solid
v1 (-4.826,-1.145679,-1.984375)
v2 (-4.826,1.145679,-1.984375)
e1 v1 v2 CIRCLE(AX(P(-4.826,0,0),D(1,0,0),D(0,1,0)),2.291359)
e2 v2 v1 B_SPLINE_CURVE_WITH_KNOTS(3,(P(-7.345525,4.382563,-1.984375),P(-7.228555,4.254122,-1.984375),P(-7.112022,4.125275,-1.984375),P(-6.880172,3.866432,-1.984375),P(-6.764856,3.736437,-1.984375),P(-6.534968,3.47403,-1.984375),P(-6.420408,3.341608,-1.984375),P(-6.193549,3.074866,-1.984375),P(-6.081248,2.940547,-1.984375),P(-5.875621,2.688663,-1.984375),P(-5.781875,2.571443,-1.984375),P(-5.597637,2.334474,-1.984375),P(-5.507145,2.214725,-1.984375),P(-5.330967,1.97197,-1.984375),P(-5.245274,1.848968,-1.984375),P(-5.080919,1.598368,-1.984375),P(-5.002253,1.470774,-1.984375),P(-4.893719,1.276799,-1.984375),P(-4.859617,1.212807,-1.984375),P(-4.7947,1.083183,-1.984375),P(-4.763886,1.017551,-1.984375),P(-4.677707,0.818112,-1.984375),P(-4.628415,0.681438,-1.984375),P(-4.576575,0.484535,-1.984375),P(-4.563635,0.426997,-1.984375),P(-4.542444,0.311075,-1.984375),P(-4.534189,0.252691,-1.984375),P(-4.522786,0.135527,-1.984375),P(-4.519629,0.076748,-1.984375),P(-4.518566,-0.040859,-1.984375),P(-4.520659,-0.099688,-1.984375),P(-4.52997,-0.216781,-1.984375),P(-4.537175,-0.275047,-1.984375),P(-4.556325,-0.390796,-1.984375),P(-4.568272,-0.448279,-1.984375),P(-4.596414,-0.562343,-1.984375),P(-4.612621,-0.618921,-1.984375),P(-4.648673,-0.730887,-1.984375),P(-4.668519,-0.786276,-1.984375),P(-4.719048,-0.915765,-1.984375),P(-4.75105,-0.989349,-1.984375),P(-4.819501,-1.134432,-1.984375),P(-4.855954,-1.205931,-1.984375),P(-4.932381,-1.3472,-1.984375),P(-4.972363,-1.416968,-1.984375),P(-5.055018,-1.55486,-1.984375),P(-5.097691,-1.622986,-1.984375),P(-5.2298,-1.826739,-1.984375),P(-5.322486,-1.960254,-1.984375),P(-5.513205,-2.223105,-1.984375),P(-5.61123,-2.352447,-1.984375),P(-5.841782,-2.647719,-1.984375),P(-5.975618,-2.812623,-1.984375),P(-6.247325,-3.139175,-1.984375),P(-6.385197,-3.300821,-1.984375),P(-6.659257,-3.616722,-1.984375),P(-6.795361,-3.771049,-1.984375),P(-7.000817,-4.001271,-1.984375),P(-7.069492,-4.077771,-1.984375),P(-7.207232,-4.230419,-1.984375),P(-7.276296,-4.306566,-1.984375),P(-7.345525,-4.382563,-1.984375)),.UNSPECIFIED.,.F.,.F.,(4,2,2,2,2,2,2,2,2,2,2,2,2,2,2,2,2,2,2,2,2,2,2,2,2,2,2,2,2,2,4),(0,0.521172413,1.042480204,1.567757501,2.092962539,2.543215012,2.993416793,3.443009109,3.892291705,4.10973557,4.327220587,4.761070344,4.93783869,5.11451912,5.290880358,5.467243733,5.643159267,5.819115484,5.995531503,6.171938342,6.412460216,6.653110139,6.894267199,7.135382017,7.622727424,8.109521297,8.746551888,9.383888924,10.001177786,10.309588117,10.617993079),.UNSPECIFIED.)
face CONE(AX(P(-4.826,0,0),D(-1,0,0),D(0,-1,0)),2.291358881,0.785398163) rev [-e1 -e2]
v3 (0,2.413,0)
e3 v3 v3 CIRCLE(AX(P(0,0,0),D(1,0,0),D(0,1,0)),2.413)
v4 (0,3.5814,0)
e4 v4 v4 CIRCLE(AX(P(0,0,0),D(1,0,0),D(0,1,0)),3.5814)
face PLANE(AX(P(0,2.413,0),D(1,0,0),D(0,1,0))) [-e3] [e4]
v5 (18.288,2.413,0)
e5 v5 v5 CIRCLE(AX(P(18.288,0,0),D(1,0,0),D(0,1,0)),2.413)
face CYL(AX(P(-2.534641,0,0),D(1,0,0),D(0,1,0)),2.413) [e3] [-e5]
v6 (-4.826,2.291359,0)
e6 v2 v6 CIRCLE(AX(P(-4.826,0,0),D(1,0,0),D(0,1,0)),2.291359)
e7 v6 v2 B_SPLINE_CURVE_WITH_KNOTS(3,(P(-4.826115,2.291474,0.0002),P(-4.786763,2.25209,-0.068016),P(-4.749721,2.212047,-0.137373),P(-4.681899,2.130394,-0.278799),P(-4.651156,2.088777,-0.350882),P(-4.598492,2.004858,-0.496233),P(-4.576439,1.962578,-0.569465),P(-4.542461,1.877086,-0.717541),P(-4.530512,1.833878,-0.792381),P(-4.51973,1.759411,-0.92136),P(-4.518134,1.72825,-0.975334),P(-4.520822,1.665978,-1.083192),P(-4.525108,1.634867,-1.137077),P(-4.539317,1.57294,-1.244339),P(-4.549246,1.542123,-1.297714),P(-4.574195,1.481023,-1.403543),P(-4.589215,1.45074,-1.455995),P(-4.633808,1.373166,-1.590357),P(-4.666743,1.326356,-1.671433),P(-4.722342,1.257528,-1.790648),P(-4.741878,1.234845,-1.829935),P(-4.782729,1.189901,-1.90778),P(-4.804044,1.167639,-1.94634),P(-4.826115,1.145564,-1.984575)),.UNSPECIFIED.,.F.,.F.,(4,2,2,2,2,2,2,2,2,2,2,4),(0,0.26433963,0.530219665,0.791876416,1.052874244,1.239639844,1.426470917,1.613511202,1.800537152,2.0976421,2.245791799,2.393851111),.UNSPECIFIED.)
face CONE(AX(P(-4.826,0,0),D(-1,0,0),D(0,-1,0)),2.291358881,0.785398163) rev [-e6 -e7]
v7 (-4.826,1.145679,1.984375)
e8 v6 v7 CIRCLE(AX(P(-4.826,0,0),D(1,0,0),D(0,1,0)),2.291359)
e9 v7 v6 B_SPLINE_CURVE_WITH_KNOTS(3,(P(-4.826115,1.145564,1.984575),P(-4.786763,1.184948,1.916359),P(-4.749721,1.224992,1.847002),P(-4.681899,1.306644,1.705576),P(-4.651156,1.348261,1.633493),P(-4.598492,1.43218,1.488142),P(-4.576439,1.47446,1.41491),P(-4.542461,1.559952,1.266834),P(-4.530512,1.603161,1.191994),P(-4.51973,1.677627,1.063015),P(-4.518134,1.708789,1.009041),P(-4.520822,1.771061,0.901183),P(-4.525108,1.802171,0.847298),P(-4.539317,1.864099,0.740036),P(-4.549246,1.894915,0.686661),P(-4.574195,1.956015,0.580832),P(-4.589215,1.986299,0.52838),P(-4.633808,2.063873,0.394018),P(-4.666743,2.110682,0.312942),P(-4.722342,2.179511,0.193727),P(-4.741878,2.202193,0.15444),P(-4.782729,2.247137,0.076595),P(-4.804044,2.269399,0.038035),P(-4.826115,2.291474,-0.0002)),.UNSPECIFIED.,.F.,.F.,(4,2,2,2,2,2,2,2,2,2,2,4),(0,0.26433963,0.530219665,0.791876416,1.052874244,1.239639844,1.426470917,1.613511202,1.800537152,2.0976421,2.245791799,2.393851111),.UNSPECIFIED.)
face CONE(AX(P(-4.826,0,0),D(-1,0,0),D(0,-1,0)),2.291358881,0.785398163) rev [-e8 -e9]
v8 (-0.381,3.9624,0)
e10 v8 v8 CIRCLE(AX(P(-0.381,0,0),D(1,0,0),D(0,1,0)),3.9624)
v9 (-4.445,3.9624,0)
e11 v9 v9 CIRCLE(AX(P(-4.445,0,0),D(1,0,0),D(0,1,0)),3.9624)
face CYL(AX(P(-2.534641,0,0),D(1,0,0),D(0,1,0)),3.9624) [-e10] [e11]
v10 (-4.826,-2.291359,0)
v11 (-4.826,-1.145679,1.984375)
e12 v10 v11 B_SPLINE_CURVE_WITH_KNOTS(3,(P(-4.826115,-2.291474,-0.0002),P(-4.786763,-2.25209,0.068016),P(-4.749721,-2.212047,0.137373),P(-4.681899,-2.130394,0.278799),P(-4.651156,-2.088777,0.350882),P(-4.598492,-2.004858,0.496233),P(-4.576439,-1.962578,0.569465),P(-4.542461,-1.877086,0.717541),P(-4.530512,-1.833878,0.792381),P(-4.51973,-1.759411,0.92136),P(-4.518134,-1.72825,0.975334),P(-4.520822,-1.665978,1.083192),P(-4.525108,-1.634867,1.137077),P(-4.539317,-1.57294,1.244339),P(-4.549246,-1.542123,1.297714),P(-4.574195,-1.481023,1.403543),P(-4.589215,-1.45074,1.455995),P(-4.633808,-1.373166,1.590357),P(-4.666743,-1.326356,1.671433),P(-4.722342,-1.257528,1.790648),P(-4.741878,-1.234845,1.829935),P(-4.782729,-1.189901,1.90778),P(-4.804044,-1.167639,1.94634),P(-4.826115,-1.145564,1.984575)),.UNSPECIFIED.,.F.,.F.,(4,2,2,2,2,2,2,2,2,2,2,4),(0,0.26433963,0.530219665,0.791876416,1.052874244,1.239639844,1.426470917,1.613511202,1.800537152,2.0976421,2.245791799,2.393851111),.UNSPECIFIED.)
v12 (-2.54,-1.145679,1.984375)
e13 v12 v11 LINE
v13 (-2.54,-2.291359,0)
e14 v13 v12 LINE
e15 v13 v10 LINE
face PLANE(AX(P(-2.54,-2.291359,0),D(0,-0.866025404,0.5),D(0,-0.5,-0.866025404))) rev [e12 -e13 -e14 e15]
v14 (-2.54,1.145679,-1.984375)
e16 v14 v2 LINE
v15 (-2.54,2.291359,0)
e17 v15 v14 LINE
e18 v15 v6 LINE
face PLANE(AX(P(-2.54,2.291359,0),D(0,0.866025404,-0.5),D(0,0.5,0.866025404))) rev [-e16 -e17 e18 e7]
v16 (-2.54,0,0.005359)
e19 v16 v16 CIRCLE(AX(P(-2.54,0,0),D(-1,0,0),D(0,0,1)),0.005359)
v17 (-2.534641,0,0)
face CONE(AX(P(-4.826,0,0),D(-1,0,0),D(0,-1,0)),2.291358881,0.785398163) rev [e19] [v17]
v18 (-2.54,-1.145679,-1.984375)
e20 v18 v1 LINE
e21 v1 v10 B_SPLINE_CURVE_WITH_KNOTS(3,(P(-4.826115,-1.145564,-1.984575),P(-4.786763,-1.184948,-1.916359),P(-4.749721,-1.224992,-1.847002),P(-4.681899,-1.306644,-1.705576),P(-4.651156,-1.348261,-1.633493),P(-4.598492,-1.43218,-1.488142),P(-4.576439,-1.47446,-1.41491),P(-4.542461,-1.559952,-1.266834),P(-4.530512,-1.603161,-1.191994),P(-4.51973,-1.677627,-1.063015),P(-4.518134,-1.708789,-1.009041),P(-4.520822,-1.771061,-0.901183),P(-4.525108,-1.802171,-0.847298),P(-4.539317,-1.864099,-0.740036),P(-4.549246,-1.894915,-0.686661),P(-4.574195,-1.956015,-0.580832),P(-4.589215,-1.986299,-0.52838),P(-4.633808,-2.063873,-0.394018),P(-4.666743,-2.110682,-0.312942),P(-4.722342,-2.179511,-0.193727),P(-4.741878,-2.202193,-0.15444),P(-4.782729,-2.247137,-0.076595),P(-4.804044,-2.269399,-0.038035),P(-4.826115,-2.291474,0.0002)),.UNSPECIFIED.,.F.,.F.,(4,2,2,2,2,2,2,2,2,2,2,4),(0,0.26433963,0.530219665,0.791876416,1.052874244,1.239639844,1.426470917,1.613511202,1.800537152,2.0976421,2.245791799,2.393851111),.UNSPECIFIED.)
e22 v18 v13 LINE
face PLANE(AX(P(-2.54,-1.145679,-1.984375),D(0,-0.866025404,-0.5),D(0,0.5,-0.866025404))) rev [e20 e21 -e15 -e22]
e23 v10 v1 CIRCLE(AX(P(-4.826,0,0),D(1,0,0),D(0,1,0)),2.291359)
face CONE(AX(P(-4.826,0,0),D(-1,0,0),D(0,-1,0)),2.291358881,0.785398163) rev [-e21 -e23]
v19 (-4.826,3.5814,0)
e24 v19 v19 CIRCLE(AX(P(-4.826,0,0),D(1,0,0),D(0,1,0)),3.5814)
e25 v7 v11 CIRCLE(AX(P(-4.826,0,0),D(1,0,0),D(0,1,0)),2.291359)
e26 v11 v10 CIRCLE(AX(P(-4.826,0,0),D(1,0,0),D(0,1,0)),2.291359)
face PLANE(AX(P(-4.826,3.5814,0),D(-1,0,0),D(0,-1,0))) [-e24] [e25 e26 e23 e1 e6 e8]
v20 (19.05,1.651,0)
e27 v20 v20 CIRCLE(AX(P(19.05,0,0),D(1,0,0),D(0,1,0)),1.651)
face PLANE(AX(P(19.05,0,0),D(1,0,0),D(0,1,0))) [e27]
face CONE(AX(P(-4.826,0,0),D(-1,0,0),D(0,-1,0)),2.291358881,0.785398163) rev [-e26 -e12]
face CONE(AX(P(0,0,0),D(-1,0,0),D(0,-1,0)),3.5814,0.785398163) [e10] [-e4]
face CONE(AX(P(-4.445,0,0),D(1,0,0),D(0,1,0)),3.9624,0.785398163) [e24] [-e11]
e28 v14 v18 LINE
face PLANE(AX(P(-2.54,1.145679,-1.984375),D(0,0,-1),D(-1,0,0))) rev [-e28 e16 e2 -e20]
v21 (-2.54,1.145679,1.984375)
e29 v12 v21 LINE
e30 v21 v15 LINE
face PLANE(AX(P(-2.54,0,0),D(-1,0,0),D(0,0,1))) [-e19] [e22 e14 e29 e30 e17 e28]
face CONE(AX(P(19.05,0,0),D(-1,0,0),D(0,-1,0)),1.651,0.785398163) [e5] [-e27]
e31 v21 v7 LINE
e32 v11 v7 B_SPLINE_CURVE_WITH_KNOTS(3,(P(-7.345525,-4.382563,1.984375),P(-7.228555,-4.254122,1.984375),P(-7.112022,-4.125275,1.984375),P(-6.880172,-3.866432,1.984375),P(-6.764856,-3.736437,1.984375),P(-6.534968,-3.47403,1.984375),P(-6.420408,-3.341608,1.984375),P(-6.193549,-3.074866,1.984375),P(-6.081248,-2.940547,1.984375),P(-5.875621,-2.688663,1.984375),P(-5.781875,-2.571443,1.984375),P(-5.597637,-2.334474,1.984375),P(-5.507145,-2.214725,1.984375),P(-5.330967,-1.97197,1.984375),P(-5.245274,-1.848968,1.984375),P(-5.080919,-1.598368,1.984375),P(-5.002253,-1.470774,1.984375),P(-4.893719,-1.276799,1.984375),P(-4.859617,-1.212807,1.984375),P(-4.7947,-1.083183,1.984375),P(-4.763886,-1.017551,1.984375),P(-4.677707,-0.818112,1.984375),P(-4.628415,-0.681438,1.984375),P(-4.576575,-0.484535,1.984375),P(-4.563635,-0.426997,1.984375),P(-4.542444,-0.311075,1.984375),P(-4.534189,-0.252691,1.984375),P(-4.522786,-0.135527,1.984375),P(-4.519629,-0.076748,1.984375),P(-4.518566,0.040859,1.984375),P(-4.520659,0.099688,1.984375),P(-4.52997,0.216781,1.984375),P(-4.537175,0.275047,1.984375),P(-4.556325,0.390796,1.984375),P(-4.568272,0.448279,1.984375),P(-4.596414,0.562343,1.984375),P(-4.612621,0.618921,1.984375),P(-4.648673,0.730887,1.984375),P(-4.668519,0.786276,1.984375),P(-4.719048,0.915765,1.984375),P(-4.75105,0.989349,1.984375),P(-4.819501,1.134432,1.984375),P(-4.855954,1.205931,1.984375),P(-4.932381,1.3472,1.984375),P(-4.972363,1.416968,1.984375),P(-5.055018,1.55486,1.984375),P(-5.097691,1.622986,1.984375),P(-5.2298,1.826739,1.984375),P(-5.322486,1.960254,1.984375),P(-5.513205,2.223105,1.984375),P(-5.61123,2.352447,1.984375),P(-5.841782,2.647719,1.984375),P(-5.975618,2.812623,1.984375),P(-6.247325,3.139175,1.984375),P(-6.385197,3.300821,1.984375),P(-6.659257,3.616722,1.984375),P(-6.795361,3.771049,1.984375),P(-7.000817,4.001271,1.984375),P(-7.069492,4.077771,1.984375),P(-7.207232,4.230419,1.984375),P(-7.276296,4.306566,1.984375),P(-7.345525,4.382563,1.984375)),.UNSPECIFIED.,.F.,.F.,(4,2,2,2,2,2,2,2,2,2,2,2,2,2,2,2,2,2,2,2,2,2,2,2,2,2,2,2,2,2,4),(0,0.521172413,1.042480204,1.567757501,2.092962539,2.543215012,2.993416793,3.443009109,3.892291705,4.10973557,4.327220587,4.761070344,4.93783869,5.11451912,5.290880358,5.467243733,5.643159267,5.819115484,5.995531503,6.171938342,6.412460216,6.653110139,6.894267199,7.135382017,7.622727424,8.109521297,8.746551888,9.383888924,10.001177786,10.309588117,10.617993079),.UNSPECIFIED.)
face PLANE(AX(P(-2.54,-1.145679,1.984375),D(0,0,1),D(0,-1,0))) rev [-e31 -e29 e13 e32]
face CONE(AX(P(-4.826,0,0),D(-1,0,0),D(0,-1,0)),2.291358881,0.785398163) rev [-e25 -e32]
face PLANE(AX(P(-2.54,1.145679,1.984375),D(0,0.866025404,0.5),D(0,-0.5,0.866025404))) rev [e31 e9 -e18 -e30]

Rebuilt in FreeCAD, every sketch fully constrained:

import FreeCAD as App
import Part
import Sketcher
from FreeCAD import Vector
Q = App.Units.Quantity

doc = App.newDocument("Part")
params = doc.addObject("Spreadsheet::Sheet", "Params")
for row, (alias, value) in enumerate([
    ("sketch1_width", "0.16 in"),
    ("sketch1_width2", "0.72 in"),
    ("sketch1_height", "0.046 in"),
    ("sketch1_height2", "0.065 in"),
    ("revolution_angle", "360 deg"),
    ("pocket1_length", "0.09 in"),
], start=1):
    params.set(f"A{row}", alias)
    params.set(f"B{row}", "=" + value)
    params.setAlias(f"B{row}", alias)

body = doc.addObject("PartDesign::Body", "Body")

# Sketch on XY plane
sketch1 = body.newObject("Sketcher::SketchObject", "Sketch")
sketch1.AttachmentSupport = (doc.getObject("XY_Plane"), [""])
sketch1.MapMode = "FlatFace"
sketch1.addGeometry(Part.LineSegment(Vector(0, 2.4, 0), Vector(0, 3.6, 0)), False)
sketch1.addGeometry(Part.LineSegment(Vector(0, 3.6, 0), Vector(-0.4, 4, 0)), False)
sketch1.addGeometry(Part.LineSegment(Vector(-0.4, 4, 0), Vector(-4.4, 4, 0)), False)
sketch1.addGeometry(Part.LineSegment(Vector(-4.4, 4, 0), Vector(-4.8, 3.6, 0)), False)
sketch1.addGeometry(Part.LineSegment(Vector(-4.8, 3.6, 0), Vector(-4.8, 2.3, 0)), False)
sketch1.addGeometry(Part.LineSegment(Vector(-4.8, 2.3, 0), Vector(-2.5, 0, 0)), False)
sketch1.addGeometry(Part.LineSegment(Vector(-2.5, 0, 0), Vector(19.1, 0, 0)), False)
sketch1.addGeometry(Part.LineSegment(Vector(19.1, 0, 0), Vector(19.1, 1.7, 0)), False)
sketch1.addGeometry(Part.LineSegment(Vector(19.1, 1.7, 0), Vector(18.3, 2.4, 0)), False)
sketch1.addGeometry(Part.LineSegment(Vector(18.3, 2.4, 0), Vector(0, 2.4, 0)), False)
sketch1.addConstraint(Sketcher.Constraint("Coincident", 0, 2, 1, 1))
sketch1.addConstraint(Sketcher.Constraint("Coincident", 1, 2, 2, 1))
sketch1.addConstraint(Sketcher.Constraint("Coincident", 2, 2, 3, 1))
sketch1.addConstraint(Sketcher.Constraint("Coincident", 3, 2, 4, 1))
sketch1.addConstraint(Sketcher.Constraint("Coincident", 4, 2, 5, 1))
sketch1.addConstraint(Sketcher.Constraint("Coincident", 5, 2, 6, 1))
sketch1.addConstraint(Sketcher.Constraint("Coincident", 6, 2, 7, 1))
sketch1.addConstraint(Sketcher.Constraint("Coincident", 7, 2, 8, 1))
sketch1.addConstraint(Sketcher.Constraint("Coincident", 8, 2, 9, 1))
sketch1.addConstraint(Sketcher.Constraint("Coincident", 9, 2, 0, 1))
sketch1.addConstraint(Sketcher.Constraint("Vertical", 0))
sketch1.addConstraint(Sketcher.Constraint("Horizontal", 2))
sketch1.addConstraint(Sketcher.Constraint("Vertical", 4))
sketch1.addConstraint(Sketcher.Constraint("Horizontal", 6))
sketch1.addConstraint(Sketcher.Constraint("Vertical", 7))
sketch1.addConstraint(Sketcher.Constraint("Horizontal", 9))
sketch1.addConstraint(Sketcher.Constraint("PointOnObject", 0, 2, -2))
sketch1.addConstraint(Sketcher.Constraint("PointOnObject", 5, 2, -1))
sketch1.addConstraint(Sketcher.Constraint("Perpendicular", 1, 3))
sketch1.addConstraint(Sketcher.Constraint("Perpendicular", 3, 5))
sketch1.addConstraint(Sketcher.Constraint("Parallel", 5, 8))
sketch1.addConstraint(Sketcher.Constraint("Horizontal", 0, 2, 3, 2))
sketch1.addConstraint(Sketcher.Constraint("Equal", 1, 3))
sketch1.addConstraint(Sketcher.Constraint("DistanceX", 2, 2, 2, 1, Q("0.16 in")))
sketch1.addConstraint(Sketcher.Constraint("DistanceX", 9, 2, 9, 1, Q("0.72 in")))
sketch1.addConstraint(Sketcher.Constraint("DistanceY", 0, 1, 0, 2, Q("0.046 in")))
sketch1.addConstraint(Sketcher.Constraint("DistanceY", 7, 1, 7, 2, Q("0.065 in")))
sketch1.addConstraint(Sketcher.Constraint("DistanceX", 3, 2, -1, 1, Q("0.19 in")))
sketch1.addConstraint(Sketcher.Constraint("DistanceX", -1, 1, 6, 2, Q("0.75 in")))
sketch1.addConstraint(Sketcher.Constraint("DistanceX", 6, 1, 6, 2, 21.584641))
sketch1.setExpression("Constraints[23]", "Params.sketch1_width")
sketch1.setExpression("Constraints[24]", "Params.sketch1_width2")
sketch1.setExpression("Constraints[25]", "Params.sketch1_height")
sketch1.setExpression("Constraints[26]", "Params.sketch1_height2")
revolution = body.newObject("PartDesign::Revolution", "Revolution")
revolution.Profile = sketch1
revolution.ReferenceAxis = (sketch1, ["H_Axis"])
revolution.setExpression("Angle", "Params.revolution_angle")

# Sketch on YZ plane
sketch2 = body.newObject("Sketcher::SketchObject", "Sketch001")
sketch2.AttachmentSupport = (doc.getObject("YZ_Plane"), [""])
sketch2.MapMode = "FlatFace"
sketch2.AttachmentOffset = App.Placement(Vector(0, 0, -0.19 * 25.4), App.Rotation())
sketch2.addGeometry(Part.LineSegment(Vector(2.3, 0, 0), Vector(1.1, -2, 0)), False)
sketch2.addGeometry(Part.LineSegment(Vector(1.1, -2, 0), Vector(-1.1, -2, 0)), False)
sketch2.addGeometry(Part.LineSegment(Vector(-1.1, -2, 0), Vector(-2.3, 0, 0)), False)
sketch2.addGeometry(Part.LineSegment(Vector(-2.3, 0, 0), Vector(-1.1, 2, 0)), False)
sketch2.addGeometry(Part.LineSegment(Vector(-1.1, 2, 0), Vector(1.1, 2, 0)), False)
sketch2.addGeometry(Part.LineSegment(Vector(1.1, 2, 0), Vector(2.3, 0, 0)), False)
sketch2.addConstraint(Sketcher.Constraint("Coincident", 0, 2, 1, 1))
sketch2.addConstraint(Sketcher.Constraint("Coincident", 1, 2, 2, 1))
sketch2.addConstraint(Sketcher.Constraint("Coincident", 2, 2, 3, 1))
sketch2.addConstraint(Sketcher.Constraint("Coincident", 3, 2, 4, 1))
sketch2.addConstraint(Sketcher.Constraint("Coincident", 4, 2, 5, 1))
sketch2.addConstraint(Sketcher.Constraint("Coincident", 5, 2, 0, 1))
sketch2.addConstraint(Sketcher.Constraint("Horizontal", 1))
sketch2.addConstraint(Sketcher.Constraint("Horizontal", 4))
sketch2.addConstraint(Sketcher.Constraint("Symmetric", 0, 2, 3, 2, -1, 1))
sketch2.addConstraint(Sketcher.Constraint("Symmetric", 2, 2, 5, 2, -1, 1))
sketch2.addConstraint(Sketcher.Constraint("PointOnObject", 2, 2, -1))
sketch2.addConstraint(Sketcher.Constraint("Parallel", 2, 5))
sketch2.addConstraint(Sketcher.Constraint("Vertical", 1, 2, 3, 2))
sketch2.addConstraint(Sketcher.Constraint("Angle", 0, Q("-120 deg")))
sketch2.addConstraint(Sketcher.Constraint("DistanceY", 0, 2, -1, 1, Q("0.078125 in")))
sketch2.addConstraint(Sketcher.Constraint("DistanceX", 1, 2, 1, 1, 2.291359))
pocket1 = body.newObject("PartDesign::Pocket", "Pocket")
pocket1.Profile = sketch2
pocket1.setExpression("Length", "Params.pocket1_length")
pocket1.Reversed = True

doc.recompute()
